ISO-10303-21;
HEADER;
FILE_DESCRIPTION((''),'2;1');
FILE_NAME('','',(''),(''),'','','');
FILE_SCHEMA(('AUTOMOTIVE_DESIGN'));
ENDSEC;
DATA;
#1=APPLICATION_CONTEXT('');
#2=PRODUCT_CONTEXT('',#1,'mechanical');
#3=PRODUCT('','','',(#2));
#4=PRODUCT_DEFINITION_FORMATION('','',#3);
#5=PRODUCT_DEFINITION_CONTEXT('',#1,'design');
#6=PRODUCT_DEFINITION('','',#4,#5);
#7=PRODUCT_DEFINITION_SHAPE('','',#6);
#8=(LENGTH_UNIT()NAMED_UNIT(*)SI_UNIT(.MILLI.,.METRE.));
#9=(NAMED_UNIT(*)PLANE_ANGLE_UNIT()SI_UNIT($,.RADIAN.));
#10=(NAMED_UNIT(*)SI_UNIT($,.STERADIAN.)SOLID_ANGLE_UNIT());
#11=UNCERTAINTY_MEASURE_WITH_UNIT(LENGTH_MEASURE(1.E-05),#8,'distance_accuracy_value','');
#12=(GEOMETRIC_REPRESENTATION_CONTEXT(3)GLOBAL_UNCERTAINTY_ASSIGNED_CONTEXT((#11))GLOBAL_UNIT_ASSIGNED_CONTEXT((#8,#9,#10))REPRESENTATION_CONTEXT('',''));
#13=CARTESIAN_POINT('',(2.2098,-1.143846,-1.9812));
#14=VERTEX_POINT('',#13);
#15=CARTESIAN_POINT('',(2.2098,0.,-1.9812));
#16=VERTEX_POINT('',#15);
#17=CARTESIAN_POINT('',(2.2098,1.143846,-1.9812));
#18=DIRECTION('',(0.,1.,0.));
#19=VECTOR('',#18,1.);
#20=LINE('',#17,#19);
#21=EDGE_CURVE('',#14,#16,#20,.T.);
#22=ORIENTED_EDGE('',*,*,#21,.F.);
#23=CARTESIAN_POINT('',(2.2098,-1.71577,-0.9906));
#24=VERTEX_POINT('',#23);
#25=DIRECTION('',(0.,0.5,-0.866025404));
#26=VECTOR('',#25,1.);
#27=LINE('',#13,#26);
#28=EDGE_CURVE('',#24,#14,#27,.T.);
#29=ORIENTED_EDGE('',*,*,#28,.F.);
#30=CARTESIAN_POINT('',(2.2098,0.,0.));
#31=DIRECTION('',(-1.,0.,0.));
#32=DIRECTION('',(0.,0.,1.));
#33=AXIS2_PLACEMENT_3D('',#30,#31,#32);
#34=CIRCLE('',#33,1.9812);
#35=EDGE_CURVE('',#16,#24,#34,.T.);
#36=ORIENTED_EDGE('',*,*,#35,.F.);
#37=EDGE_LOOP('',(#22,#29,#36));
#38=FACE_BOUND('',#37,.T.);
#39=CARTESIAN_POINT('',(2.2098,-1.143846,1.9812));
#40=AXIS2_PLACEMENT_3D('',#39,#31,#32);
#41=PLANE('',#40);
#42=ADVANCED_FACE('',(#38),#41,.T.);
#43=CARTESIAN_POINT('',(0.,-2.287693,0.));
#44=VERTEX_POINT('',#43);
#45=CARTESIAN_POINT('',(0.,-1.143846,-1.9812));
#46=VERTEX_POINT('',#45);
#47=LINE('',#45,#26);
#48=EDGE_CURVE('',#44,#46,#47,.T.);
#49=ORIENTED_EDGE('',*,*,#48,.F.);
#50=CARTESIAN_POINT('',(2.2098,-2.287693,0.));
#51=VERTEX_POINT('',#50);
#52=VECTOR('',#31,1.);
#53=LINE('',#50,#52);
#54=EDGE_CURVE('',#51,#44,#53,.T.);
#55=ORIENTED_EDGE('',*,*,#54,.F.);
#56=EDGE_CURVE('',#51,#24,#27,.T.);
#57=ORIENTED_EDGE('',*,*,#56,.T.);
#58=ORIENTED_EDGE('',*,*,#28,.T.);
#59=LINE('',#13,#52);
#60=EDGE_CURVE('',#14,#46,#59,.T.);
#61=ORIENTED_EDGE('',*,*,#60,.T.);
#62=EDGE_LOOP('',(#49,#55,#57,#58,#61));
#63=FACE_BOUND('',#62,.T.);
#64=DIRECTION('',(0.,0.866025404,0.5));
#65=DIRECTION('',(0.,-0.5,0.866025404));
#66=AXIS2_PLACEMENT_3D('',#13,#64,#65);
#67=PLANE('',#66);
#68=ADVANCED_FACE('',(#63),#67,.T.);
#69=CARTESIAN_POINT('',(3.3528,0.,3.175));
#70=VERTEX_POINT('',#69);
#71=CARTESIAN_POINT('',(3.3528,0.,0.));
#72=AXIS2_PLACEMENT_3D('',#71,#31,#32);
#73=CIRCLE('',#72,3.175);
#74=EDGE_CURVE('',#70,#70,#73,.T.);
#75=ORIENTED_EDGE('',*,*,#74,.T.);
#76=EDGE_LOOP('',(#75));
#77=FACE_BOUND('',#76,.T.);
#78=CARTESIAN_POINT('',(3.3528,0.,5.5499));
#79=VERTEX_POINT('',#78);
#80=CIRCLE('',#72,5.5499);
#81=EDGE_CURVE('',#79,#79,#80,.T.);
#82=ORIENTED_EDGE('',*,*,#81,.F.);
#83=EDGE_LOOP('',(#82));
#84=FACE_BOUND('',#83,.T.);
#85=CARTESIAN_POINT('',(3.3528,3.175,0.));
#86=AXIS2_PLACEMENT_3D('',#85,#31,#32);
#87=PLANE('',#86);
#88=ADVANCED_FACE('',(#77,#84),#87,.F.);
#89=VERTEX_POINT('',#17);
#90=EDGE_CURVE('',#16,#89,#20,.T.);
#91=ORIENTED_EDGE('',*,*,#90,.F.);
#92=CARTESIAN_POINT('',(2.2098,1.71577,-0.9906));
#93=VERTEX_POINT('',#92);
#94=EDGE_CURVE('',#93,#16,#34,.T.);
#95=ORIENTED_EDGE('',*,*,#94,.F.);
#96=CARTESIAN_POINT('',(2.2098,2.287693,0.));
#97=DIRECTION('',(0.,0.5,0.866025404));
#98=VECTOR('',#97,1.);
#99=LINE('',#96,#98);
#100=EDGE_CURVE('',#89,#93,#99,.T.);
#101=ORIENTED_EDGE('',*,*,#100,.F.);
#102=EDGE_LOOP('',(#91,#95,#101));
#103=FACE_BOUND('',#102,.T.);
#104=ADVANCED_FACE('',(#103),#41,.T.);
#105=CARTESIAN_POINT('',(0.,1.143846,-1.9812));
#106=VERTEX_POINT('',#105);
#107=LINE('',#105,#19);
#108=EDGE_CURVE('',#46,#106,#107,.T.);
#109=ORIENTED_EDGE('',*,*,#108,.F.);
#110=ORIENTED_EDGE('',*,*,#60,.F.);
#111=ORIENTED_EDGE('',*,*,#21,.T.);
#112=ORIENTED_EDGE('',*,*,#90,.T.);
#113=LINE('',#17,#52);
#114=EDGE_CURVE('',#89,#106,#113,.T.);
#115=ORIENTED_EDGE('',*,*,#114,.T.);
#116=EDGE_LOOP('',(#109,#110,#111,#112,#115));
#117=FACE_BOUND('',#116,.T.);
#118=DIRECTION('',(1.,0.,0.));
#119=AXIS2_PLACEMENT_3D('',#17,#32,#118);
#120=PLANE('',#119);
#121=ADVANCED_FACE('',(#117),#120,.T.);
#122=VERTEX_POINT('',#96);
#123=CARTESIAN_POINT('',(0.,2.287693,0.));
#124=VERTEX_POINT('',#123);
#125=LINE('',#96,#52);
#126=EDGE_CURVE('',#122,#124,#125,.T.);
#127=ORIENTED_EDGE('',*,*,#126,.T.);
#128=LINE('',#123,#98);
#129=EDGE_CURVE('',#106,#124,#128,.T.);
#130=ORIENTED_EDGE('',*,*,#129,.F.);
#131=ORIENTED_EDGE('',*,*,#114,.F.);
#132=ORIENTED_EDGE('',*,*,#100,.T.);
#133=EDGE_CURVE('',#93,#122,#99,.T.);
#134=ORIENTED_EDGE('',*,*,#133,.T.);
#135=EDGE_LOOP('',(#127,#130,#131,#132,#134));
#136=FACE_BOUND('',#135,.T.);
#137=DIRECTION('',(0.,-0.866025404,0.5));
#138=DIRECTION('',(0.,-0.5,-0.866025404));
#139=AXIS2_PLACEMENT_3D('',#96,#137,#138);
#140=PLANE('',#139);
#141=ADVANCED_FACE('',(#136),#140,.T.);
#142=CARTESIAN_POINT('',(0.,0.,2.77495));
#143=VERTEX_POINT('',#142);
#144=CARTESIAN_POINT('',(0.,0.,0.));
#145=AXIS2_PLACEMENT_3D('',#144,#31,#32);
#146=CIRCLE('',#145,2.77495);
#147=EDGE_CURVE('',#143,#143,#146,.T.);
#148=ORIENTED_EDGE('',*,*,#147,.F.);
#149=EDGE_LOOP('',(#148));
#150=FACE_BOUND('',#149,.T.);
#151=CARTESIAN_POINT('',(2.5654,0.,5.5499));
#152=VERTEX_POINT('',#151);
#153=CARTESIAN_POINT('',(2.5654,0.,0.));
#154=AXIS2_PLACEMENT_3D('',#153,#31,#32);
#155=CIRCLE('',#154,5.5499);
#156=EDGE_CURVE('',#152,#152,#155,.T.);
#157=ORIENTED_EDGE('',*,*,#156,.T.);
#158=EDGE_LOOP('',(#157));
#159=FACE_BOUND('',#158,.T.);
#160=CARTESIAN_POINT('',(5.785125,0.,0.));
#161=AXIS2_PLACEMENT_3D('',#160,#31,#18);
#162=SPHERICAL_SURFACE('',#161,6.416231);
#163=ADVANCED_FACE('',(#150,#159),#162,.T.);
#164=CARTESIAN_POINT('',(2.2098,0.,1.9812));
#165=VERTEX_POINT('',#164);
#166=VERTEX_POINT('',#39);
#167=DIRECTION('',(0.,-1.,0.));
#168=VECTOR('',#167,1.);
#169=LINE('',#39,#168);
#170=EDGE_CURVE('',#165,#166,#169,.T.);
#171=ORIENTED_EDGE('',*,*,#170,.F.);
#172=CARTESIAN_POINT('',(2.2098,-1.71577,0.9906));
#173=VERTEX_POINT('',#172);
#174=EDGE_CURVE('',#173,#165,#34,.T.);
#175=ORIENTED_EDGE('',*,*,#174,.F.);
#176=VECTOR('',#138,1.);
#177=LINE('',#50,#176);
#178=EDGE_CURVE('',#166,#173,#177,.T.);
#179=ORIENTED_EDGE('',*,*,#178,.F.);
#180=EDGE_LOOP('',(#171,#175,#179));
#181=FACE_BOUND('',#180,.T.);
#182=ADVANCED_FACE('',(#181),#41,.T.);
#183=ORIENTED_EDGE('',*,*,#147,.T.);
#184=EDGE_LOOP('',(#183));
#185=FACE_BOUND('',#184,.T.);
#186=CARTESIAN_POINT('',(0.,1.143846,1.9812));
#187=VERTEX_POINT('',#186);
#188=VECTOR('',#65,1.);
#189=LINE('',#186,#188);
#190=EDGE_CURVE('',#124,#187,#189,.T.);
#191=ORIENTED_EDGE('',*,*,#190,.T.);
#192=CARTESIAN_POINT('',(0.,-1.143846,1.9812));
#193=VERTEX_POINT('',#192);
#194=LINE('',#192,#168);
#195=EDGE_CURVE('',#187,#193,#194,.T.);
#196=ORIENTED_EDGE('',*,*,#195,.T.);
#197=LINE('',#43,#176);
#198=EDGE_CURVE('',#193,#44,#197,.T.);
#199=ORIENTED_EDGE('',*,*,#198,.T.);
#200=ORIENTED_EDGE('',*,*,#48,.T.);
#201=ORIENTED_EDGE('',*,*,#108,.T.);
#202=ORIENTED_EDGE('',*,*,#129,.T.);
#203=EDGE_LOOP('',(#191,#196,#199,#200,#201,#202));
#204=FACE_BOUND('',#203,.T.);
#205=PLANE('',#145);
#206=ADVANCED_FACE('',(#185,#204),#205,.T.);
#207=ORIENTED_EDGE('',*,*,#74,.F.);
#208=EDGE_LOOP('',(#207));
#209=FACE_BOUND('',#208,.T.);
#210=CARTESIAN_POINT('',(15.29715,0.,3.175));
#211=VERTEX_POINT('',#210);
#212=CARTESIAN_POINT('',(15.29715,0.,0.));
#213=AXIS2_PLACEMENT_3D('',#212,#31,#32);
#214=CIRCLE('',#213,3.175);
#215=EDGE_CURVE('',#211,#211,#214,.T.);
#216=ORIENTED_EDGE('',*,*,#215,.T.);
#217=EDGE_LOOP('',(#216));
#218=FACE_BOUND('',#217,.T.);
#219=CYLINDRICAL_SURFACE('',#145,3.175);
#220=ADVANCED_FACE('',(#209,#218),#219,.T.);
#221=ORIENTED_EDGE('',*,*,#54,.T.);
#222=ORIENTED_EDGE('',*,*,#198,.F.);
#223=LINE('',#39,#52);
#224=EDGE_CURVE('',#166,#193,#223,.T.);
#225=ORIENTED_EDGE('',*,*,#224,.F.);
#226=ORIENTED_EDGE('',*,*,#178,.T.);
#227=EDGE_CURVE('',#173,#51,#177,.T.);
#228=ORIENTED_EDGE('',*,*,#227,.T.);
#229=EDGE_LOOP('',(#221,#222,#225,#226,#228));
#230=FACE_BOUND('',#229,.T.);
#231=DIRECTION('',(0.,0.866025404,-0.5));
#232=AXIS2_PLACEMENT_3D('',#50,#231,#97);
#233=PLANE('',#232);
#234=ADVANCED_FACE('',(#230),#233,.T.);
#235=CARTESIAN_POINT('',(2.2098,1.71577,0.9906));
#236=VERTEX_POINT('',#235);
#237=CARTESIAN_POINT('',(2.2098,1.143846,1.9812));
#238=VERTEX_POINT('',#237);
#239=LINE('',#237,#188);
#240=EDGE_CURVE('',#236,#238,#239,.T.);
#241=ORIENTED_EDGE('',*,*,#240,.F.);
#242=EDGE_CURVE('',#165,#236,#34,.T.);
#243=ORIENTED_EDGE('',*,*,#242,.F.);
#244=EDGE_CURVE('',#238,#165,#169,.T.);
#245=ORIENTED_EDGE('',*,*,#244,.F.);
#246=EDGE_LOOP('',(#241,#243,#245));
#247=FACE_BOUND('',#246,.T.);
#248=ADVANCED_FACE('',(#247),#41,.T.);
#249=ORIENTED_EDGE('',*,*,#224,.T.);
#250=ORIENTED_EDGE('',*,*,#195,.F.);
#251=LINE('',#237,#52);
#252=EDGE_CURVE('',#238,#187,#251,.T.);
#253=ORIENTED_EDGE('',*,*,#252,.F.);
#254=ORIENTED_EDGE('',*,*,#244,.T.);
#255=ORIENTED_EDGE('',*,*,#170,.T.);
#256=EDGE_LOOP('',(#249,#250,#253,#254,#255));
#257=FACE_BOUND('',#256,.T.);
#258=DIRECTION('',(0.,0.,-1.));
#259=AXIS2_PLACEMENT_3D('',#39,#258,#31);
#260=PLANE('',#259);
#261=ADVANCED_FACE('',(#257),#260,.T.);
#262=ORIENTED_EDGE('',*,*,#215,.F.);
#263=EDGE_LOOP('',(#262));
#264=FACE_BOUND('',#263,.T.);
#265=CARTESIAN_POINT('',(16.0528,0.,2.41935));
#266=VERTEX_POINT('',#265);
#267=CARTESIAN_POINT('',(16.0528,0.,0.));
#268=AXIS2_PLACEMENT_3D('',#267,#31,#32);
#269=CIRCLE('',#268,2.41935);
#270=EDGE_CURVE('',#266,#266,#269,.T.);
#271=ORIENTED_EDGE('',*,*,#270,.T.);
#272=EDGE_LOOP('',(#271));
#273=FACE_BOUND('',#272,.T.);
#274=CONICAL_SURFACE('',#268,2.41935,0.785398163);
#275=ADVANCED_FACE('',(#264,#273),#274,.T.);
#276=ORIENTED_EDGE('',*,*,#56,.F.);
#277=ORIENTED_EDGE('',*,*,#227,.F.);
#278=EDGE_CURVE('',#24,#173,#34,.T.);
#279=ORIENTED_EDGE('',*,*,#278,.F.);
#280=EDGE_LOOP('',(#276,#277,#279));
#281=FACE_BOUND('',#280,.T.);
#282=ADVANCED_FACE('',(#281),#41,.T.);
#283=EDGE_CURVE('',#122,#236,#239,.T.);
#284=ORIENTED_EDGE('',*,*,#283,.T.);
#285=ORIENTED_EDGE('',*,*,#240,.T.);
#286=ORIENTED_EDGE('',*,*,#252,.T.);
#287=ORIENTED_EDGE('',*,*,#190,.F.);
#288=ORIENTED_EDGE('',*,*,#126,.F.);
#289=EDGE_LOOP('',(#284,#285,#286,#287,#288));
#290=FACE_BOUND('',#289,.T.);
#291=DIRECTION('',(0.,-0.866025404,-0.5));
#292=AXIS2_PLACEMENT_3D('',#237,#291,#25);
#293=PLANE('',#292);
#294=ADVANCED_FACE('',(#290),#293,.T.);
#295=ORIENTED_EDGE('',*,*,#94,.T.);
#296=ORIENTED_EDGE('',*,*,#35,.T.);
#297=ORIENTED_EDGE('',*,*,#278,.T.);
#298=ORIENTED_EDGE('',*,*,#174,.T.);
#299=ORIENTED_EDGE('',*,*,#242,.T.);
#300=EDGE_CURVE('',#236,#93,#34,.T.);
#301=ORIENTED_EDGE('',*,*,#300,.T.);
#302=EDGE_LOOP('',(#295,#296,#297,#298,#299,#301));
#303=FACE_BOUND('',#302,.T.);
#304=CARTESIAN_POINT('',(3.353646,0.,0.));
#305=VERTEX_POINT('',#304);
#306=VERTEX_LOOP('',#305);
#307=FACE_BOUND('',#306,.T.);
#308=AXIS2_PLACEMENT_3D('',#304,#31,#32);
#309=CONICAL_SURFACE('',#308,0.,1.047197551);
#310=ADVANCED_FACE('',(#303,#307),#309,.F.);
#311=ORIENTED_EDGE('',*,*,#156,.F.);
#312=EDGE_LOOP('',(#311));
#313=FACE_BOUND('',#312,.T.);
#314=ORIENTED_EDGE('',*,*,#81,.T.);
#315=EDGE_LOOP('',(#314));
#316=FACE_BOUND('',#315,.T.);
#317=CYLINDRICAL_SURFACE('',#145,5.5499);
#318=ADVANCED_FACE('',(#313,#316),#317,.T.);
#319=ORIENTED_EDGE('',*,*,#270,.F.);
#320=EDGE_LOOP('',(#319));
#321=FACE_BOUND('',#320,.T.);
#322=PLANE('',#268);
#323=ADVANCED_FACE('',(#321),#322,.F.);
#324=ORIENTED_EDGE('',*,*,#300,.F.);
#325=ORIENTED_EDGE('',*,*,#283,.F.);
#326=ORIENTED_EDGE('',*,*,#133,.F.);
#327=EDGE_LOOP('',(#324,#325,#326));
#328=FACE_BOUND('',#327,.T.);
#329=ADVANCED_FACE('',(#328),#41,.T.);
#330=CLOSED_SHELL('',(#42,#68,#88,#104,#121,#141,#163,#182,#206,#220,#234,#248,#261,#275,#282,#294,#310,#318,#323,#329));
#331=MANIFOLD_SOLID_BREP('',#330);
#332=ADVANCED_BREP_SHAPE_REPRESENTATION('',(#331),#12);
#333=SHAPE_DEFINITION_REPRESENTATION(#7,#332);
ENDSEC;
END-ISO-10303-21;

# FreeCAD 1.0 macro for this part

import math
import FreeCAD as App
import Part
import Sketcher

V = App.Vector
Q = App.Units.Quantity

doc = App.newDocument("Part")
body = doc.addObject("PartDesign::Body", "Body")

# Sketch on XY plane
sketch1 = body.newObject("Sketcher::SketchObject", "Sketch")
sketch1.AttachmentSupport = (doc.getObject("XY_Plane"), [""])
sketch1.MapMode = "FlatFace"
sketch1.addGeometry(Part.LineSegment(V(16.0528, 0, 0), V(16.0528, 2.41935, 0)), False)
sketch1.addGeometry(Part.LineSegment(V(16.0528, 2.41935, 0), V(15.29715, 3.175, 0)), False)
sketch1.addGeometry(Part.LineSegment(V(15.29715, 3.175, 0), V(3.3528, 3.175, 0)), False)
sketch1.addGeometry(Part.LineSegment(V(3.3528, 3.175, 0), V(3.3528, 5.5499, 0)), False)
sketch1.addGeometry(Part.LineSegment(V(3.3528, 5.5499, 0), V(2.5654, 5.5499, 0)), False)
sketch1.addGeometry(Part.ArcOfCircle(Part.Circle(V(5.785125, 0, 0), V(0, 0, 1), 6.416231), math.radians(120.119782), math.radians(154.374371)), False)
sketch1.addGeometry(Part.LineSegment(V(0, 2.77495, 0), V(0, 0, 0)), False)
sketch1.addGeometry(Part.LineSegment(V(0, 0, 0), V(16.0528, 0, 0)), False)
sketch1.addConstraint(Sketcher.Constraint("Coincident", 0, 2, 1, 1))
sketch1.addConstraint(Sketcher.Constraint("Coincident", 1, 2, 2, 1))
sketch1.addConstraint(Sketcher.Constraint("Coincident", 2, 2, 3, 1))
sketch1.addConstraint(Sketcher.Constraint("Coincident", 3, 2, 4, 1))
sketch1.addConstraint(Sketcher.Constraint("Coincident", 4, 2, 5, 1))
sketch1.addConstraint(Sketcher.Constraint("Coincident", 5, 2, 6, 1))
sketch1.addConstraint(Sketcher.Constraint("Coincident", 6, 2, 7, 1))
sketch1.addConstraint(Sketcher.Constraint("Coincident", 7, 2, 0, 1))
sketch1.addConstraint(Sketcher.Constraint("Vertical", 0))
sketch1.addConstraint(Sketcher.Constraint("Horizontal", 2))
sketch1.addConstraint(Sketcher.Constraint("Vertical", 3))
sketch1.addConstraint(Sketcher.Constraint("Horizontal", 4))
sketch1.addConstraint(Sketcher.Constraint("Vertical", 6))
sketch1.addConstraint(Sketcher.Constraint("Horizontal", 7))
sketch1.addConstraint(Sketcher.Constraint("Coincident", 6, 2, -1, 1))
sketch1.addConstraint(Sketcher.Constraint("PointOnObject", 5, 3, -1))
sketch1.addConstraint(Sketcher.Constraint("Angle", 1, Q("135 deg")))
sketch1.addConstraint(Sketcher.Constraint("DistanceX", 2, 2, 0, 2, Q("0.5 in")))
sketch1.addConstraint(Sketcher.Constraint("DistanceX", 4, 2, 4, 1, Q("0.031 in")))
sketch1.addConstraint(Sketcher.Constraint("DistanceX", 7, 1, 7, 2, Q("0.632 in")))
sketch1.addConstraint(Sketcher.Constraint("DistanceY", 3, 1, 3, 2, Q("0.0935 in")))
sketch1.addConstraint(Sketcher.Constraint("DistanceY", -1, 1, 1, 2, Q("0.125 in")))
sketch1.addConstraint(Sketcher.Constraint("Radius", 5, Q("6.416231 mm")))
sketch1.addConstraint(Sketcher.Constraint("DistanceX", 2, 2, 2, 1, Q("11.94435 mm")))
revolution = body.newObject("PartDesign::Revolution", "Revolution")
revolution.Profile = sketch1
revolution.ReferenceAxis = (sketch1, ["H_Axis"])
revolution.Angle = 360

# Sketch on XY plane
sketch2 = body.newObject("Sketcher::SketchObject", "Sketch001")
sketch2.AttachmentSupport = (doc.getObject("XY_Plane"), [""])
sketch2.MapMode = "FlatFace"
sketch2.addGeometry(Part.LineSegment(V(2.2098, 1.9812, 0), V(0, 1.9812, 0)), False)
sketch2.addGeometry(Part.LineSegment(V(0, 1.9812, 0), V(0, 0, 0)), False)
sketch2.addGeometry(Part.LineSegment(V(0, 0, 0), V(3.353646, 0, 0)), False)
sketch2.addGeometry(Part.LineSegment(V(3.353646, 0, 0), V(2.2098, 1.9812, 0)), False)
sketch2.addConstraint(Sketcher.Constraint("Coincident", 0, 2, 1, 1))
sketch2.addConstraint(Sketcher.Constraint("Coincident", 1, 2, 2, 1))
sketch2.addConstraint(Sketcher.Constraint("Coincident", 2, 2, 3, 1))
sketch2.addConstraint(Sketcher.Constraint("Coincident", 3, 2, 0, 1))
sketch2.addConstraint(Sketcher.Constraint("Horizontal", 0))
sketch2.addConstraint(Sketcher.Constraint("Vertical", 1))
sketch2.addConstraint(Sketcher.Constraint("Horizontal", 2))
sketch2.addConstraint(Sketcher.Constraint("Coincident", 1, 2, -1, 1))
sketch2.addConstraint(Sketcher.Constraint("Angle", 3, Q("120 deg")))
sketch2.addConstraint(Sketcher.Constraint("DistanceX", 0, 2, 0, 1, Q("0.087 in")))
sketch2.addConstraint(Sketcher.Constraint("DistanceY", 1, 2, 1, 1, Q("0.078 in")))
groove = body.newObject("PartDesign::Groove", "Groove")
groove.Profile = sketch2
groove.ReferenceAxis = (sketch2, ["H_Axis"])
groove.Angle = 360

# Sketch on YZ plane
sketch3 = body.newObject("Sketcher::SketchObject", "Sketch002")
sketch3.AttachmentSupport = (doc.getObject("YZ_Plane"), [""])
sketch3.MapMode = "FlatFace"
sketch3.addGeometry(Part.LineSegment(V(1.143846, 1.9812, 0), V(-1.143846, 1.9812, 0)), False)
sketch3.addGeometry(Part.LineSegment(V(-1.143846, 1.9812, 0), V(-2.287693, 0, 0)), False)
sketch3.addGeometry(Part.LineSegment(V(-2.287693, 0, 0), V(-1.143846, -1.9812, 0)), False)
sketch3.addGeometry(Part.LineSegment(V(-1.143846, -1.9812, 0), V(1.143846, -1.9812, 0)), False)
sketch3.addGeometry(Part.LineSegment(V(1.143846, -1.9812, 0), V(2.287693, 0, 0)), False)
sketch3.addGeometry(Part.LineSegment(V(2.287693, 0, 0), V(1.143846, 1.9812, 0)), False)
sketch3.addConstraint(Sketcher.Constraint("Coincident", 0, 2, 1, 1))
sketch3.addConstraint(Sketcher.Constraint("Coincident", 1, 2, 2, 1))
sketch3.addConstraint(Sketcher.Constraint("Coincident", 2, 2, 3, 1))
sketch3.addConstraint(Sketcher.Constraint("Coincident", 3, 2, 4, 1))
sketch3.addConstraint(Sketcher.Constraint("Coincident", 4, 2, 5, 1))
sketch3.addConstraint(Sketcher.Constraint("Coincident", 5, 2, 0, 1))
sketch3.addConstraint(Sketcher.Constraint("Horizontal", 0))
sketch3.addConstraint(Sketcher.Constraint("Horizontal", 3))
sketch3.addConstraint(Sketcher.Constraint("Symmetric", 0, 2, 3, 2, -1, 1))
sketch3.addConstraint(Sketcher.Constraint("Symmetric", 1, 2, 4, 2, -1, 1))
sketch3.addConstraint(Sketcher.Constraint("PointOnObject", 1, 2, -1))
sketch3.addConstraint(Sketcher.Constraint("Parallel", 2, 5))
sketch3.addConstraint(Sketcher.Constraint("Vertical", 0, 2, 2, 2))
sketch3.addConstraint(Sketcher.Constraint("Angle", 1, Q("-120 deg")))
sketch3.addConstraint(Sketcher.Constraint("DistanceY", -1, 1, 0, 2, Q("0.078 in")))
sketch3.addConstraint(Sketcher.Constraint("DistanceX", 1, 2, 3, 2, Q("0.1351 in")))
pocket1 = body.newObject("PartDesign::Pocket", "Pocket")
pocket1.Profile = sketch3
pocket1.Length = Q("0.087 in")
pocket1.Reversed = True

doc.recompute()
